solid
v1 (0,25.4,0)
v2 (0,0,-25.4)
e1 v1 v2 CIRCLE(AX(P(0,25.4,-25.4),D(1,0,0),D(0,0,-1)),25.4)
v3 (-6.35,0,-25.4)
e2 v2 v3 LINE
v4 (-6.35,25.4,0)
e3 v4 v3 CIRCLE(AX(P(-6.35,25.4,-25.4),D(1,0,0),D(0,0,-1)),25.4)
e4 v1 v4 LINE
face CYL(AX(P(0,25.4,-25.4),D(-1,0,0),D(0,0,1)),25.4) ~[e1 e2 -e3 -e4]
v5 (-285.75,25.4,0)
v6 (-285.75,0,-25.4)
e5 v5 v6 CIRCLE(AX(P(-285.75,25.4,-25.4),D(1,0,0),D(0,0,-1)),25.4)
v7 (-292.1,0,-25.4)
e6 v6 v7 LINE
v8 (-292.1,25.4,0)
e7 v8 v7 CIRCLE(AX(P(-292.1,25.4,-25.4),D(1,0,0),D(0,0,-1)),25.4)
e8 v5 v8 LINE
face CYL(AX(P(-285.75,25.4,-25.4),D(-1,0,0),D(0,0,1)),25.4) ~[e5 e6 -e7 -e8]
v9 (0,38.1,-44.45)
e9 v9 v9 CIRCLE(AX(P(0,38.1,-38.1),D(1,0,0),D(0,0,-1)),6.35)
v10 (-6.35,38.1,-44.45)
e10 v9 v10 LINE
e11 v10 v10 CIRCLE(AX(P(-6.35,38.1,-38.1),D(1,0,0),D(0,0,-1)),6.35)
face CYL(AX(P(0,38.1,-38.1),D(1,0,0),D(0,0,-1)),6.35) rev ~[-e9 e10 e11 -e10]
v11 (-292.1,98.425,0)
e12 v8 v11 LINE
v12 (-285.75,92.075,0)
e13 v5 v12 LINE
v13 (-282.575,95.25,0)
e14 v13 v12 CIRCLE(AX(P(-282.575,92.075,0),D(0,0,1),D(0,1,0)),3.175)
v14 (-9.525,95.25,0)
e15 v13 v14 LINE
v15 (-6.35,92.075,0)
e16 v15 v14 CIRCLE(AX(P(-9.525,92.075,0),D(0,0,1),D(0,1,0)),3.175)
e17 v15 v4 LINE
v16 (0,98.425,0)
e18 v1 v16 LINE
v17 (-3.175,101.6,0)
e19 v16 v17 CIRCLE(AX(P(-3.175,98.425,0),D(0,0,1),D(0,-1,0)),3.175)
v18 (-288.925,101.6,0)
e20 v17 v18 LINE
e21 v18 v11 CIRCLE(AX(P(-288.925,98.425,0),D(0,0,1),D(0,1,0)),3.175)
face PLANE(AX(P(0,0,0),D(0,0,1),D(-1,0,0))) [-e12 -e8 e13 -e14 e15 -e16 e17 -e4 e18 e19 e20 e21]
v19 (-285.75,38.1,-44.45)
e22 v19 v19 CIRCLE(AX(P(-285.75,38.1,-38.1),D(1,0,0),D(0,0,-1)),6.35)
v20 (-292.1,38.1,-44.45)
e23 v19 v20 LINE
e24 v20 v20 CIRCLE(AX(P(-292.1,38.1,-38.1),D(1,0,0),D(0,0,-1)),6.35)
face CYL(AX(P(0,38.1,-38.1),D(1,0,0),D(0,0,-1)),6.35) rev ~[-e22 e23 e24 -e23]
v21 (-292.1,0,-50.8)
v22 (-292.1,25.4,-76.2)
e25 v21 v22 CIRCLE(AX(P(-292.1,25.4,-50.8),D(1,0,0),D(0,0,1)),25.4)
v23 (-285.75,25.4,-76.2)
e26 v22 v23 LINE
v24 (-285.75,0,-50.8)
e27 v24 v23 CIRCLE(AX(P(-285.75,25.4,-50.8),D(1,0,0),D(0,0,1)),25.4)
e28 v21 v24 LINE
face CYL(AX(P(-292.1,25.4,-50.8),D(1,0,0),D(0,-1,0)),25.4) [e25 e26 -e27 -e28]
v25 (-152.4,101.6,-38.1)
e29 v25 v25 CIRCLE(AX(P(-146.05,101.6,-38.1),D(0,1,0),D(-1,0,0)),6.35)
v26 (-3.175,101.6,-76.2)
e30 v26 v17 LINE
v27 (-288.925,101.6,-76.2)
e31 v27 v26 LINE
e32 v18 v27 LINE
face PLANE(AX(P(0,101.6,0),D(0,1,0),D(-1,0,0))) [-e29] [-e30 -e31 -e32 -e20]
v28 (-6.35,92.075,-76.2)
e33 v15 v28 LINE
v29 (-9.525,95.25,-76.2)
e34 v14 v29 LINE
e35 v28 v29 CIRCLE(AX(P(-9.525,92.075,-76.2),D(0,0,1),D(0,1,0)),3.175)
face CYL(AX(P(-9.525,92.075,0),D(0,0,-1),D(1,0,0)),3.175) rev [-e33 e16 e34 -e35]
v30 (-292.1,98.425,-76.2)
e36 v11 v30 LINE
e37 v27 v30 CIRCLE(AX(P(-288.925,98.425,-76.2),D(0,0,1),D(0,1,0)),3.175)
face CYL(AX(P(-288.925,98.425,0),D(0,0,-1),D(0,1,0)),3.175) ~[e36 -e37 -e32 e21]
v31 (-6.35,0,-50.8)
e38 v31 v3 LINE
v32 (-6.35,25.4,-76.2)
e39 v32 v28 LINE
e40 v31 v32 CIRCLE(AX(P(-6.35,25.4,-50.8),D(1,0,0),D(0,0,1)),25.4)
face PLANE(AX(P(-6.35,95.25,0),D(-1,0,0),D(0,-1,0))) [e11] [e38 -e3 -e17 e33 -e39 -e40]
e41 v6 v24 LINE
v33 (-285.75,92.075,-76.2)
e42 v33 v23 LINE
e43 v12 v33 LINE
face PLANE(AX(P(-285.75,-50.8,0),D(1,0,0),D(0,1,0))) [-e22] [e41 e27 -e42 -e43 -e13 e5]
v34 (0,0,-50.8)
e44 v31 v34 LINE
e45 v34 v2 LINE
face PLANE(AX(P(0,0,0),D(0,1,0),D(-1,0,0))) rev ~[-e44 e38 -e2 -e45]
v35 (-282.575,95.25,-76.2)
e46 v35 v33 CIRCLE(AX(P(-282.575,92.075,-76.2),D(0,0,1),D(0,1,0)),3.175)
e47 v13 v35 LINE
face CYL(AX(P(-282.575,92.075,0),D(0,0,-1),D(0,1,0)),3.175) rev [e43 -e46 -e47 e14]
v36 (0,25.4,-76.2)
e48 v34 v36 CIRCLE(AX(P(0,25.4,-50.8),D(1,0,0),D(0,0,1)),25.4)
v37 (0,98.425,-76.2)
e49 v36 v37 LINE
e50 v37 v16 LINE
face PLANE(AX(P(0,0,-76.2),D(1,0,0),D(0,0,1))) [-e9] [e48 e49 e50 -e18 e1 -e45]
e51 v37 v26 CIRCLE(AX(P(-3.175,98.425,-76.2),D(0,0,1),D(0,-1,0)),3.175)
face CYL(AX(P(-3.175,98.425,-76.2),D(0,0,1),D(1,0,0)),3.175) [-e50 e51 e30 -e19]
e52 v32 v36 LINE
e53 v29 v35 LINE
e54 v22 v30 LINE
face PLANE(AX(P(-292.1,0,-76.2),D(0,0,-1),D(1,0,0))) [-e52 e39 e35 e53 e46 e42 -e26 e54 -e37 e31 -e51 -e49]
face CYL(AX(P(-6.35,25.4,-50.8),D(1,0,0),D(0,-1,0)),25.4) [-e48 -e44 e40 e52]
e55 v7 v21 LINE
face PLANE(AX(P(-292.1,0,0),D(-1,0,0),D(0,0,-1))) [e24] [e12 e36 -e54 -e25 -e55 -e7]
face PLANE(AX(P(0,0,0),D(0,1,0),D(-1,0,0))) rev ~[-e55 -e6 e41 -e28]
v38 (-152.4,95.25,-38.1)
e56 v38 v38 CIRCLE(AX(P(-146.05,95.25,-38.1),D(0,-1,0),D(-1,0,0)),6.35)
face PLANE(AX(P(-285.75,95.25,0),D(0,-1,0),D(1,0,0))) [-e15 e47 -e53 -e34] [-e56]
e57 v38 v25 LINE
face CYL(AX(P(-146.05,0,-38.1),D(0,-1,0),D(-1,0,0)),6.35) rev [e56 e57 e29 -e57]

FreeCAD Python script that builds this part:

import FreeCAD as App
import Part
import Sketcher
Q = App.Units.Quantity


def edges_at(feature, points):
    """Names of the edges that pass closest to the given points."""
    edges = feature.Shape.Edges
    near = lambda p: min(range(len(edges)), key=lambda i: edges[i].distToShape(Part.Vertex(*p))[0])
    return sorted({f"Edge{near(p) + 1}" for p in points})


def add_polygon(sketch, points):
    """Adds a closed chain of lines whose ends are joined by coincident constraints."""
    first, n = sketch.GeometryCount, len(points)
    for a, b in zip(points, points[1:] + points[:1]):
        sketch.addGeometry(Part.LineSegment(App.Vector(*a, 0), App.Vector(*b, 0)), False)
    for i in range(n):
        sketch.addConstraint(Sketcher.Constraint("Coincident", first + i, 2, first + (i + 1) % n, 1))

doc = App.newDocument("Part")
params = doc.addObject("Spreadsheet::Sheet", "Params")
for row, (alias, value) in enumerate([
    ("sketch1_diameter", "0.5 in"),
    ("sketch1_height", "3 in"),
    ("sketch1_width", "11.5 in"),
    ("pad1_length", "4 in"),
    ("sketch2_height", "5.75 in"),
    ("sketch2_width", "11 in"),
    ("pocket1_length", "4.6875 in"),
    ("fillet_radius", "1 in"),
    ("sketch3_diameter", "0.5 in"),
    ("pocket2_length", "13 in"),
    ("fillet2_radius", "0.125 in"),
], start=1):
    params.set(f"A{row}", alias)
    params.set(f"B{row}", "=" + value)
    params.setAlias(f"B{row}", alias)

body = doc.addObject("PartDesign::Body", "Body")

# Sketch on XZ plane
sketch1 = body.newObject("Sketcher::SketchObject", "Sketch")
sketch1.AttachmentSupport = (doc.getObject("XZ_Plane"), [""])
sketch1.MapMode = "FlatFace"
add_polygon(sketch1, [(-292, 0), (0, 0), (0, -76), (-292, -76)])  # lines 0-3
sketch1.addGeometry(Part.Circle(App.Vector(-146, -38, 0), App.Vector(0, 0, 1), 6), False)  # 4
sketch1.addConstraint(Sketcher.Constraint("Horizontal", 0))
sketch1.addConstraint(Sketcher.Constraint("Vertical", 1))
sketch1.addConstraint(Sketcher.Constraint("Horizontal", 2))
sketch1.addConstraint(Sketcher.Constraint("Vertical", 3))
sketch1.addConstraint(Sketcher.Constraint("Coincident", 0, 2, -1, 1))
sketch1.addConstraint(Sketcher.Constraint("Diameter", 4, Q("0.5 in")))
sketch1.addConstraint(Sketcher.Constraint("DistanceY", 1, 2, 1, 1, Q("3 in")))
sketch1.addConstraint(Sketcher.Constraint("DistanceX", 0, 1, 0, 2, Q("11.5 in")))
sketch1.addConstraint(Sketcher.Constraint("DistanceY", 4, 3, -1, 1, Q("1.5 in")))
sketch1.addConstraint(Sketcher.Constraint("DistanceX", 4, 3, -1, 1, Q("5.75 in")))
sketch1.setExpression("Constraints[9]", "Params.sketch1_diameter")
sketch1.setExpression("Constraints[10]", "Params.sketch1_height")
sketch1.setExpression("Constraints[11]", "Params.sketch1_width")
pad1 = body.newObject("PartDesign::Pad", "Pad")
pad1.Profile = sketch1
pad1.setExpression("Length", "Params.pad1_length")
pad1.Reversed = True

# Sketch on XY plane
sketch2 = body.newObject("Sketcher::SketchObject", "Sketch001")
sketch2.AttachmentSupport = (doc.getObject("XY_Plane"), [""])
sketch2.MapMode = "FlatFace"
add_polygon(sketch2, [(-286, -51), (-6, -51), (-6, 95), (-286, 95)])  # lines 0-3
sketch2.addConstraint(Sketcher.Constraint("Horizontal", 0))
sketch2.addConstraint(Sketcher.Constraint("Vertical", 1))
sketch2.addConstraint(Sketcher.Constraint("Horizontal", 2))
sketch2.addConstraint(Sketcher.Constraint("Vertical", 3))
sketch2.addConstraint(Sketcher.Constraint("DistanceY", 1, 1, 1, 2, Q("5.75 in")))
sketch2.addConstraint(Sketcher.Constraint("DistanceX", 0, 1, 0, 2, Q("11 in")))
sketch2.addConstraint(Sketcher.Constraint("DistanceX", 0, 2, -1, 1, Q("0.25 in")))
sketch2.addConstraint(Sketcher.Constraint("DistanceY", 0, 2, -1, 1, Q("2 in")))
sketch2.setExpression("Constraints[8]", "Params.sketch2_height")
sketch2.setExpression("Constraints[9]", "Params.sketch2_width")
pocket1 = body.newObject("PartDesign::Pocket", "Pocket")
pocket1.Profile = sketch2
pocket1.setExpression("Length", "Params.pocket1_length")
doc.recompute()

fillet = body.newObject("PartDesign::Fillet", "Fillet")
fillet.Base = (pocket1, edges_at(pocket1, [
    (-288.925, 0, 0),
    (-288.925, 0, -76.2),
    (-3.175, 0, 0),
    (-3.175, 0, -76.2),
]))
fillet.setExpression("Radius", "Params.fillet_radius")

# Sketch on YZ plane
sketch3 = body.newObject("Sketcher::SketchObject", "Sketch002")
sketch3.AttachmentSupport = (doc.getObject("YZ_Plane"), [""])
sketch3.MapMode = "FlatFace"
sketch3.addGeometry(Part.Circle(App.Vector(38, -38, 0), App.Vector(0, 0, 1), 6), False)
sketch3.addConstraint(Sketcher.Constraint("Diameter", 0, Q("0.5 in")))
sketch3.addConstraint(Sketcher.Constraint("DistanceX", -1, 1, 0, 3, Q("1.5 in")))
sketch3.addConstraint(Sketcher.Constraint("DistanceY", 0, 3, -1, 1, Q("1.5 in")))
sketch3.setExpression("Constraints[0]", "Params.sketch3_diameter")
pocket2 = body.newObject("PartDesign::Pocket", "Pocket001")
pocket2.Profile = sketch3
pocket2.setExpression("Length", "Params.pocket2_length")
doc.recompute()

fillet2 = body.newObject("PartDesign::Fillet", "Fillet001")
fillet2.Base = (pocket2, edges_at(pocket2, [
    (-292.1, 101.6, -38.1),
    (-285.75, 95.25, -38.1),
    (0, 101.6, -38.1),
    (-6.35, 95.25, -38.1),
]))
fillet2.setExpression("Radius", "Params.fillet2_radius")

doc.recompute()
